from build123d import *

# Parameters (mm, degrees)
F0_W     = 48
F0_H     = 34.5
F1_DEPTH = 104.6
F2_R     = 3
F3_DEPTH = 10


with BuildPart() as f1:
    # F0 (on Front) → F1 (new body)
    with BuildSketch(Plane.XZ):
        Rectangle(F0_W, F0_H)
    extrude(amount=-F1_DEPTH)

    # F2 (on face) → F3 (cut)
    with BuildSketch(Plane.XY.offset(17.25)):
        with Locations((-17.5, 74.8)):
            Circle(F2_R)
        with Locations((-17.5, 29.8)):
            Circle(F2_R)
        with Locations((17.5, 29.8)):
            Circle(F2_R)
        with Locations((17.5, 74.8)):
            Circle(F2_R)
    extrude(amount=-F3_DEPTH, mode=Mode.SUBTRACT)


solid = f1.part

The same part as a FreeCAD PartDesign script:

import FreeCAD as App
import Part
import Sketcher
from FreeCAD import Vector


def add_polygon(sketch, points):
    """Adds a closed chain of lines whose ends are joined by coincident constraints."""
    first, n = sketch.GeometryCount, len(points)
    for a, b in zip(points, points[1:] + points[:1]):
        sketch.addGeometry(Part.LineSegment(App.Vector(*a, 0), App.Vector(*b, 0)), False)
    for i in range(n):
        sketch.addConstraint(Sketcher.Constraint("Coincident", first + i, 2, first + (i + 1) % n, 1))

doc = App.newDocument("Part")
params = doc.addObject("Spreadsheet::Sheet", "Params")
for row, (alias, value) in enumerate([
    ("sketch1_width", "48 mm"),
    ("sketch1_height", "34.5 mm"),
    ("pad1_length", "104.6 mm"),
    ("sketch2_diameter", "6 mm"),
    ("pocket1_length", "10 mm"),
], start=1):
    params.set(f"A{row}", alias)
    params.set(f"B{row}", "=" + value)
    params.setAlias(f"B{row}", alias)

body = doc.addObject("PartDesign::Body", "Body")

# Sketch on XZ plane
sketch1 = doc.addObject("Sketcher::SketchObject", "Sketch")
body.addObject(sketch1)
sketch1.AttachmentSupport = (doc.XZ_Plane, [""])
sketch1.MapMode = "FlatFace"
add_polygon(sketch1, [(-24, 17), (-24, -17), (24, -17), (24, 17)])  # lines 0-3
sketch1.addConstraint(Sketcher.Constraint("Vertical", 0))
sketch1.addConstraint(Sketcher.Constraint("Horizontal", 1))
sketch1.addConstraint(Sketcher.Constraint("Vertical", 2))
sketch1.addConstraint(Sketcher.Constraint("Horizontal", 3))
sketch1.addConstraint(Sketcher.Constraint("Symmetric", 0, 2, 2, 2, -1, 1))
sketch1.addConstraint(Sketcher.Constraint("DistanceX", 1, 1, 1, 2, 48.0))
sketch1.addConstraint(Sketcher.Constraint("DistanceY", 0, 2, 0, 1, 34.5))
sketch1.setExpression("Constraints[9]", "Params.sketch1_width")
sketch1.setExpression("Constraints[10]", "Params.sketch1_height")
pad1 = doc.addObject("PartDesign::Pad", "Pad")
body.addObject(pad1)
pad1.Profile = sketch1
pad1.setExpression("Length", "Params.pad1_length")
pad1.Reversed = True

# Sketch on XY plane
sketch2 = doc.addObject("Sketcher::SketchObject", "Sketch001")
body.addObject(sketch2)
sketch2.AttachmentSupport = (doc.XY_Plane, [""])
sketch2.MapMode = "FlatFace"
sketch2.AttachmentOffset = App.Placement(Vector(0, 0, 17.25), App.Rotation())
sketch2.addGeometry(Part.Circle(Vector(-17.5, 74.8, 0), Vector(0, 0, 1), 3), False)
sketch2.addGeometry(Part.Circle(Vector(-17.5, 29.8, 0), Vector(0, 0, 1), 3), False)
sketch2.addGeometry(Part.Circle(Vector(17.5, 29.8, 0), Vector(0, 0, 1), 3), False)
sketch2.addGeometry(Part.Circle(Vector(17.5, 74.8, 0), Vector(0, 0, 1), 3), False)
sketch2.addConstraint(Sketcher.Constraint("Equal", 0, 1))
sketch2.addConstraint(Sketcher.Constraint("Equal", 1, 2))
sketch2.addConstraint(Sketcher.Constraint("Equal", 2, 3))
sketch2.addConstraint(Sketcher.Constraint("Symmetric", 1, 3, 2, 3, -2))
sketch2.addConstraint(Sketcher.Constraint("Symmetric", 0, 3, 3, 3, -2))
sketch2.addConstraint(Sketcher.Constraint("Vertical", 0, 3, 1, 3))
sketch2.addConstraint(Sketcher.Constraint("Diameter", 0, 6.0))
sketch2.addConstraint(Sketcher.Constraint("DistanceY", 1, 3, 0, 3, 45.0))
sketch2.addConstraint(Sketcher.Constraint("DistanceX", 1, 3, 2, 3, 35.0))
sketch2.addConstraint(Sketcher.Constraint("DistanceY", -1, 1, 0, 3, 74.8))
sketch2.setExpression("Constraints[6]", "Params.sketch2_diameter")
pocket1 = doc.addObject("PartDesign::Pocket", "Pocket")
body.addObject(pocket1)
pocket1.Profile = sketch2
pocket1.setExpression("Length", "Params.pocket1_length")

doc.recompute()
